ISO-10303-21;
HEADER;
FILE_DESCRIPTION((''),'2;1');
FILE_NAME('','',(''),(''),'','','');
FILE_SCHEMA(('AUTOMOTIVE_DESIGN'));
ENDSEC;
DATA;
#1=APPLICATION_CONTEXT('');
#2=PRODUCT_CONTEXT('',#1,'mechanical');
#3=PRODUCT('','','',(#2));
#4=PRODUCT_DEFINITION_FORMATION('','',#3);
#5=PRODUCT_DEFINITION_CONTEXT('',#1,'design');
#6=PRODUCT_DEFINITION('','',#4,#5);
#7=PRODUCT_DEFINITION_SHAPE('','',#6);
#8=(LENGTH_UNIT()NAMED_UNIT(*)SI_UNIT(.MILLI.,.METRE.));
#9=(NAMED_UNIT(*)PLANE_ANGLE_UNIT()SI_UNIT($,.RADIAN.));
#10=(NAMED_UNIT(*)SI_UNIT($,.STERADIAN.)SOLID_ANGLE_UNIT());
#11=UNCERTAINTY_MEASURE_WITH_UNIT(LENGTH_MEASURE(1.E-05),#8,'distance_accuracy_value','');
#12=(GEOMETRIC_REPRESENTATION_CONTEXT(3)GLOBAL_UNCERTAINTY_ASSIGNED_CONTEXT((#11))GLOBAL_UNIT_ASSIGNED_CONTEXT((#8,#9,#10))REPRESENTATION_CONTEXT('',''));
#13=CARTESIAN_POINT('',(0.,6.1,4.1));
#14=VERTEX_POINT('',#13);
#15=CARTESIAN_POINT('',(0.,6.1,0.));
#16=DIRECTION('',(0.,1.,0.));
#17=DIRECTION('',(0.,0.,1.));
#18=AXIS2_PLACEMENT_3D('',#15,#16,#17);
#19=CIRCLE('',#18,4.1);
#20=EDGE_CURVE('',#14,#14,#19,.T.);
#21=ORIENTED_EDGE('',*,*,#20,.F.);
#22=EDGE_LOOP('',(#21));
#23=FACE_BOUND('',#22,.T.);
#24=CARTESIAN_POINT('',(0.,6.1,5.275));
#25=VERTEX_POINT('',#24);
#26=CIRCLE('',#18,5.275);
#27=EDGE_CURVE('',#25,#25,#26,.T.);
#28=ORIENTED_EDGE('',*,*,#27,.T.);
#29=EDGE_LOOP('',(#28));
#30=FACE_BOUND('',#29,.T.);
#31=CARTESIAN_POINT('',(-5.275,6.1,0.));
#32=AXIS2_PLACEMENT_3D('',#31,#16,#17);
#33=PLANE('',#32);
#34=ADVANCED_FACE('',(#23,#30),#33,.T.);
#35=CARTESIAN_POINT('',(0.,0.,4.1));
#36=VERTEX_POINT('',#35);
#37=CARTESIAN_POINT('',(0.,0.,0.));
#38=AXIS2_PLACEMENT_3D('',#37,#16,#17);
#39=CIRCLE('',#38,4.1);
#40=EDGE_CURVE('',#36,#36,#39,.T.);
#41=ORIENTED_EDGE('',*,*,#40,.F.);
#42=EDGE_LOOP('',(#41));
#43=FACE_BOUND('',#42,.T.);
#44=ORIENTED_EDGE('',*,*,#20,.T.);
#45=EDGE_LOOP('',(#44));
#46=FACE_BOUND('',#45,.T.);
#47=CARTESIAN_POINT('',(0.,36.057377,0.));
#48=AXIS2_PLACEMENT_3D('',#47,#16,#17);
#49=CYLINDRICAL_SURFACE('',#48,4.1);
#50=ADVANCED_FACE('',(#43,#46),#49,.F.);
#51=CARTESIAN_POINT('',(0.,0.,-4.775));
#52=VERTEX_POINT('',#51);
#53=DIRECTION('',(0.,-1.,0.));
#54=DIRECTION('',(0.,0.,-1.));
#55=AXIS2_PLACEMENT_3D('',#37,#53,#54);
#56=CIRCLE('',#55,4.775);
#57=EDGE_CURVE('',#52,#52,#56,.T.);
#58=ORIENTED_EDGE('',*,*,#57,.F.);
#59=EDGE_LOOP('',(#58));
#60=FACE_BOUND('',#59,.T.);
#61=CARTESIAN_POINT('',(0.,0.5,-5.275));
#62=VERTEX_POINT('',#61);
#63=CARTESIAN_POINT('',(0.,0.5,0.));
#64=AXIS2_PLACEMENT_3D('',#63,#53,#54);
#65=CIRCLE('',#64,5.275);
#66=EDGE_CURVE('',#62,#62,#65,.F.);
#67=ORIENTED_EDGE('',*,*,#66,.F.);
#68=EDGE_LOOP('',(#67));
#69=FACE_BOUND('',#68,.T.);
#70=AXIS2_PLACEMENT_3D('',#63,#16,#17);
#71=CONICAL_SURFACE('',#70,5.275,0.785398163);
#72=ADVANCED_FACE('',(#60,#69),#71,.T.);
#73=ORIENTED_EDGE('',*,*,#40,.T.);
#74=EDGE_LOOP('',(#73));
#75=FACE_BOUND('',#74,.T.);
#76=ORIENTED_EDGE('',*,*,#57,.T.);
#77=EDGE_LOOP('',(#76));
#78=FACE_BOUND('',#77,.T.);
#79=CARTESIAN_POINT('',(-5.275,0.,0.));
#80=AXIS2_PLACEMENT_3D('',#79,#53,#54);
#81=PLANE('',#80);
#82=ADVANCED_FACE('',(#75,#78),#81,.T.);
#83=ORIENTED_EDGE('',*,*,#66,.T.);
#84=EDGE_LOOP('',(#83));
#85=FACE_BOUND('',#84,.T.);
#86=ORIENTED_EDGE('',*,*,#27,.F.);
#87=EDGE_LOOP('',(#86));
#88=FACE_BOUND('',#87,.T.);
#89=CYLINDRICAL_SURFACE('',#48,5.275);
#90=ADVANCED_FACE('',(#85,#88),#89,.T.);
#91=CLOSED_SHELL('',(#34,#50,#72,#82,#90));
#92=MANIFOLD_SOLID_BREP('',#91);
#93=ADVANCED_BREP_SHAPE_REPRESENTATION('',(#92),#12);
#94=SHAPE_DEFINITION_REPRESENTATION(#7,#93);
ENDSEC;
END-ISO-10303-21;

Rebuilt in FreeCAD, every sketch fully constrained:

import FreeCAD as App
import Part
import Sketcher

V = App.Vector
Q = App.Units.Quantity


def edges_at(feature, points):
    """Names of the edges that pass closest to the given points."""
    edges = feature.Shape.Edges
    near = lambda p: min(range(len(edges)), key=lambda i: edges[i].distToShape(Part.Vertex(*p))[0])
    return sorted({f"Edge{near(p) + 1}" for p in points})


def add_polygon(sketch, points):
    """Adds a closed chain of lines whose ends are joined by coincident constraints."""
    first, n = sketch.GeometryCount, len(points)
    for a, b in zip(points, points[1:] + points[:1]):
        sketch.addGeometry(Part.LineSegment(App.Vector(*a, 0), App.Vector(*b, 0)), False)
    for i in range(n):
        sketch.addConstraint(Sketcher.Constraint("Coincident", first + i, 2, first + (i + 1) % n, 1))

doc = App.newDocument("Part")
body = doc.addObject("PartDesign::Body", "Body")

sketch1 = body.newObject("Sketcher::SketchObject", "Sketch")
sketch1.AttachmentSupport = (doc.getObject("XY_Plane"), [""])
sketch1.MapMode = "FlatFace"
add_polygon(sketch1, [(-5.275, 6.1), (-5.275, 0), (-4.1, 0), (-4.1, 6.1)])
sketch1.addConstraint([
    Sketcher.Constraint("Vertical", 0),
    Sketcher.Constraint("Horizontal", 1),
    Sketcher.Constraint("Vertical", 2),
    Sketcher.Constraint("Horizontal", 3),
    Sketcher.Constraint("PointOnObject", 0, 2, -1),
    Sketcher.Constraint("DistanceY", 0, 2, 0, 1, Q("6.1 mm")),
    Sketcher.Constraint("DistanceX", 1, 2, -1, 1, Q("4.1 mm")),
    Sketcher.Constraint("DistanceX", 1, 1, 1, 2, Q("1.175 mm")),
])
revolution = body.newObject("PartDesign::Revolution", "Revolution")
revolution.Profile = sketch1
revolution.ReferenceAxis = (sketch1, ["V_Axis"])
revolution.Angle = 360
doc.recompute()

chamfer = body.newObject("PartDesign::Chamfer", "Chamfer")
chamfer.Base = (revolution, edges_at(revolution, [(5.275, 0, 0)]))
chamfer.Size = 0.5

doc.recompute()
